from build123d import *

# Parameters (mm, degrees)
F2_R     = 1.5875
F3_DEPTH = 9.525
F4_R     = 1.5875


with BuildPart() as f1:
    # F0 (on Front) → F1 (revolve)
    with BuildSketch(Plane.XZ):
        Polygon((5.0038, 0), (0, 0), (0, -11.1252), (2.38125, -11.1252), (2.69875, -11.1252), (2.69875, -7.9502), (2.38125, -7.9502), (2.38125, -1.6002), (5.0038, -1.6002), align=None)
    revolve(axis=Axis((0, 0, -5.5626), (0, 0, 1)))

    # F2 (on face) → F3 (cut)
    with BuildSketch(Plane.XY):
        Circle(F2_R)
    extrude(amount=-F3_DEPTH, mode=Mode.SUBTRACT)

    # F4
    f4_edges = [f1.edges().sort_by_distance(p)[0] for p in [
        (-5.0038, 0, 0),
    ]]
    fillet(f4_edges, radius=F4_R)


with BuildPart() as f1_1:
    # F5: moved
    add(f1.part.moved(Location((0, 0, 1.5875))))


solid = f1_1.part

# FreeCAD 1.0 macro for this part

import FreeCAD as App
import Part
import Sketcher

V = App.Vector
Q = App.Units.Quantity


def edges_at(feature, points):
    """Names of the edges that pass closest to the given points."""
    edges = feature.Shape.Edges
    near = lambda p: min(range(len(edges)), key=lambda i: edges[i].distToShape(Part.Vertex(*p))[0])
    return sorted({f"Edge{near(p) + 1}" for p in points})

doc = App.newDocument("Part")
body = doc.addObject("PartDesign::Body", "Body")

# Sketch on XZ plane
sketch1 = doc.addObject("Sketcher::SketchObject", "Sketch")
body.addObject(sketch1)
sketch1.AttachmentSupport = (doc.XZ_Plane, [""])
sketch1.MapMode = "FlatFace"
sketch1.addGeometry(Part.LineSegment(V(5.0038, 0, 0), V(0, 0, 0)), False)
sketch1.addGeometry(Part.LineSegment(V(0, 0, 0), V(0, -11.1252, 0)), False)
sketch1.addGeometry(Part.LineSegment(V(0, -11.1252, 0), V(2.69875, -11.1252, 0)), False)
sketch1.addGeometry(Part.LineSegment(V(2.69875, -11.1252, 0), V(2.69875, -7.9502, 0)), False)
sketch1.addGeometry(Part.LineSegment(V(2.69875, -7.9502, 0), V(2.38125, -7.9502, 0)), False)
sketch1.addGeometry(Part.LineSegment(V(2.38125, -7.9502, 0), V(2.38125, -1.6002, 0)), False)
sketch1.addGeometry(Part.LineSegment(V(2.38125, -1.6002, 0), V(5.0038, -1.6002, 0)), False)
sketch1.addGeometry(Part.LineSegment(V(5.0038, -1.6002, 0), V(5.0038, 0, 0)), False)
sketch1.addConstraint(Sketcher.Constraint("Coincident", 0, 2, 1, 1))
sketch1.addConstraint(Sketcher.Constraint("Coincident", 1, 2, 2, 1))
sketch1.addConstraint(Sketcher.Constraint("Coincident", 2, 2, 3, 1))
sketch1.addConstraint(Sketcher.Constraint("Coincident", 3, 2, 4, 1))
sketch1.addConstraint(Sketcher.Constraint("Coincident", 4, 2, 5, 1))
sketch1.addConstraint(Sketcher.Constraint("Coincident", 5, 2, 6, 1))
sketch1.addConstraint(Sketcher.Constraint("Coincident", 6, 2, 7, 1))
sketch1.addConstraint(Sketcher.Constraint("Coincident", 7, 2, 0, 1))
sketch1.addConstraint(Sketcher.Constraint("Horizontal", 0))
sketch1.addConstraint(Sketcher.Constraint("Vertical", 1))
sketch1.addConstraint(Sketcher.Constraint("Horizontal", 2))
sketch1.addConstraint(Sketcher.Constraint("Vertical", 3))
sketch1.addConstraint(Sketcher.Constraint("Horizontal", 4))
sketch1.addConstraint(Sketcher.Constraint("Vertical", 5))
sketch1.addConstraint(Sketcher.Constraint("Horizontal", 6))
sketch1.addConstraint(Sketcher.Constraint("Vertical", 7))
sketch1.addConstraint(Sketcher.Constraint("Coincident", 0, 2, -1, 1))
sketch1.addConstraint(Sketcher.Constraint("DistanceY", 5, 1, 5, 2, Q("0.25 in")))
sketch1.addConstraint(Sketcher.Constraint("DistanceX", 0, 2, 0, 1, Q("0.197 in")))
sketch1.addConstraint(Sketcher.Constraint("DistanceY", 1, 2, 1, 1, Q("0.438 in")))
sketch1.addConstraint(Sketcher.Constraint("DistanceY", 3, 1, 3, 2, Q("0.125 in")))
sketch1.addConstraint(Sketcher.Constraint("DistanceX", 4, 2, 4, 1, Q("0.0125 in")))
sketch1.addConstraint(Sketcher.Constraint("DistanceX", -1, 1, 4, 2, Q("0.09375 in")))
revolution = doc.addObject("PartDesign::Revolution", "Revolution")
body.addObject(revolution)
revolution.Profile = sketch1
revolution.ReferenceAxis = (sketch1, ["V_Axis"])
revolution.Angle = 360

# Sketch on XY plane
sketch2 = doc.addObject("Sketcher::SketchObject", "Sketch001")
body.addObject(sketch2)
sketch2.AttachmentSupport = (doc.XY_Plane, [""])
sketch2.MapMode = "FlatFace"
sketch2.addGeometry(Part.Circle(V(0, 0, 0), V(0, 0, 1), 1.5875), False)
sketch2.addConstraint(Sketcher.Constraint("Coincident", 0, 3, -1, 1))
sketch2.addConstraint(Sketcher.Constraint("Diameter", 0, Q("0.125 in")))
pocket1 = doc.addObject("PartDesign::Pocket", "Pocket")
body.addObject(pocket1)
pocket1.Profile = sketch2
pocket1.Length = Q("0.375 in")
doc.recompute()

fillet = doc.addObject("PartDesign::Fillet", "Fillet")
body.addObject(fillet)
fillet.Base = (pocket1, edges_at(pocket1, [(-5.004, 0, 0)]))
fillet.Radius = Q("0.0625 in")
body2 = doc.addObject("PartDesign::Body", "Body001")
doc.recompute()

body.Placement = App.Placement(V(0, 0, 1.5875), App.Rotation(V(0, 0, 1), 0))
boolean = doc.addObject("PartDesign::Boolean", "Boolean")
body2.addObject(boolean)
boolean.Type = "Fuse"
boolean.addObjects([body])

doc.recompute()
